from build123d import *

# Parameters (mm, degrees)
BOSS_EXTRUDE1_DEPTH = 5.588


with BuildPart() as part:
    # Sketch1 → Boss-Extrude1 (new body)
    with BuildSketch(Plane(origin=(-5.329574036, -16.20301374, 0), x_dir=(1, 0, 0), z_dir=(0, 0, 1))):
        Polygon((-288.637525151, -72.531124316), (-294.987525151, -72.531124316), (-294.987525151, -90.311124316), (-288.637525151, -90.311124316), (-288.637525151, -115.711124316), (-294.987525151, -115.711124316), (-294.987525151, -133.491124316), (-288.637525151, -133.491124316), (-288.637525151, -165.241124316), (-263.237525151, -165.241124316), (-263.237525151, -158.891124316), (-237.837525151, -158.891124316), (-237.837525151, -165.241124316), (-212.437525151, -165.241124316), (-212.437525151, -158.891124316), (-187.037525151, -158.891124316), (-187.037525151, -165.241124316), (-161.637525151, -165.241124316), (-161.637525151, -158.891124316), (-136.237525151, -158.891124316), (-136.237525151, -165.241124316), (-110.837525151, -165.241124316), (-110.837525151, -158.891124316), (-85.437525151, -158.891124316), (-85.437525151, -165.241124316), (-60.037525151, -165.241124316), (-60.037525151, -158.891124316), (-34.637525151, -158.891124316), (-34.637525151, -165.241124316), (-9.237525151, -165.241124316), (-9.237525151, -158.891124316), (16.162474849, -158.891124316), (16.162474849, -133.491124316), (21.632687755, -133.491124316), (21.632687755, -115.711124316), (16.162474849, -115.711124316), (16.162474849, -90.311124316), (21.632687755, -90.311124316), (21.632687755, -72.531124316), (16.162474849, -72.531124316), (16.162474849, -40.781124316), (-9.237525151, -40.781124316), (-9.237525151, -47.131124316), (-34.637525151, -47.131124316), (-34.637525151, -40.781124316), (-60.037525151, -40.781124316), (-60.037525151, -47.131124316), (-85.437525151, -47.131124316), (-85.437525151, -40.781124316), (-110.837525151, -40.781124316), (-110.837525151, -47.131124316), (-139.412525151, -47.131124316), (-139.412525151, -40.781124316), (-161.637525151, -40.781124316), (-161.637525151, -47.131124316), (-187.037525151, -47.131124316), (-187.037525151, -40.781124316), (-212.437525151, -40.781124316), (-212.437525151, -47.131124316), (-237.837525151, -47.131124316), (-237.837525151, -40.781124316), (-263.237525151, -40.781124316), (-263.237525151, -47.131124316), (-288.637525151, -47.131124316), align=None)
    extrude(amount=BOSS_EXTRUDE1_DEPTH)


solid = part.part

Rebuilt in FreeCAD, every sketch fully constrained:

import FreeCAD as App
import Part
import Sketcher

V = App.Vector
Q = App.Units.Quantity


def add_polygon(sketch, points):
    """Adds a closed chain of lines whose ends are joined by coincident constraints."""
    first, n = sketch.GeometryCount, len(points)
    for a, b in zip(points, points[1:] + points[:1]):
        sketch.addGeometry(Part.LineSegment(App.Vector(*a, 0), App.Vector(*b, 0)), False)
    for i in range(n):
        sketch.addConstraint(Sketcher.Constraint("Coincident", first + i, 2, first + (i + 1) % n, 1))

doc = App.newDocument("Part")
params = doc.addObject("Spreadsheet::Sheet", "Params")
for row, (alias, value) in enumerate([
    ("sketch1_width", "1 in"),
    ("sketch1_height", "0.7 in"),
    ("sketch1_width2", "0.25 in"),
    ("sketch1_width3", "1.125 in"),
    ("pad1_length", "0.22 in"),
], start=1):
    params.set(f"A{row}", alias)
    params.set(f"B{row}", "=" + value)
    params.setAlias(f"B{row}", alias)

body = doc.addObject("PartDesign::Body", "Body")

# Sketch on XY plane
sketch1 = body.newObject("Sketcher::SketchObject", "Sketch")
sketch1.AttachmentSupport = (doc.getObject("XY_Plane"), [""])
sketch1.MapMode = "FlatFace"
add_polygon(sketch1, [(-294, -89), (-300, -89), (-300, -107), (-294, -107), (-294, -132), (-300, -132), (-300, -150), (-294, -150), (-294, -181), (-269, -181), (-269, -175), (-243, -175), (-243, -181), (-218, -181), (-218, -175), (-192, -175), (-192, -181), (-167, -181), (-167, -175), (-142, -175), (-142, -181), (-116, -181), (-116, -175), (-91, -175), (-91, -181), (-65, -181), (-65, -175), (-40, -175), (-40, -181), (-15, -181), (-15, -175), (11, -175), (11, -150), (16, -150), (16, -132), (11, -132), (11, -107), (16, -107), (16, -89), (11, -89), (11, -57), (-15, -57), (-15, -63), (-40, -63), (-40, -57), (-65, -57), (-65, -63), (-91, -63), (-91, -57), (-116, -57), (-116, -63), (-145, -63), (-145, -57), (-167, -57), (-167, -63), (-192, -63), (-192, -57), (-218, -57), (-218, -63), (-243, -63), (-243, -57), (-269, -57), (-269, -63), (-294, -63)])  # lines 0-63
sketch1.addConstraint(Sketcher.Constraint("Horizontal", 0))
sketch1.addConstraint(Sketcher.Constraint("Vertical", 1))
sketch1.addConstraint(Sketcher.Constraint("Horizontal", 2))
sketch1.addConstraint(Sketcher.Constraint("Vertical", 3))
sketch1.addConstraint(Sketcher.Constraint("Horizontal", 4))
sketch1.addConstraint(Sketcher.Constraint("Vertical", 5))
sketch1.addConstraint(Sketcher.Constraint("Horizontal", 6))
sketch1.addConstraint(Sketcher.Constraint("Vertical", 7))
sketch1.addConstraint(Sketcher.Constraint("Horizontal", 8))
sketch1.addConstraint(Sketcher.Constraint("Vertical", 9))
sketch1.addConstraint(Sketcher.Constraint("Horizontal", 10))
sketch1.addConstraint(Sketcher.Constraint("Vertical", 11))
sketch1.addConstraint(Sketcher.Constraint("Horizontal", 12))
sketch1.addConstraint(Sketcher.Constraint("Vertical", 13))
sketch1.addConstraint(Sketcher.Constraint("Horizontal", 14))
sketch1.addConstraint(Sketcher.Constraint("Vertical", 15))
sketch1.addConstraint(Sketcher.Constraint("Horizontal", 16))
sketch1.addConstraint(Sketcher.Constraint("Vertical", 17))
sketch1.addConstraint(Sketcher.Constraint("Horizontal", 18))
sketch1.addConstraint(Sketcher.Constraint("Vertical", 19))
sketch1.addConstraint(Sketcher.Constraint("Horizontal", 20))
sketch1.addConstraint(Sketcher.Constraint("Vertical", 21))
sketch1.addConstraint(Sketcher.Constraint("Horizontal", 22))
sketch1.addConstraint(Sketcher.Constraint("Vertical", 23))
sketch1.addConstraint(Sketcher.Constraint("Horizontal", 24))
sketch1.addConstraint(Sketcher.Constraint("Vertical", 25))
sketch1.addConstraint(Sketcher.Constraint("Horizontal", 26))
sketch1.addConstraint(Sketcher.Constraint("Vertical", 27))
sketch1.addConstraint(Sketcher.Constraint("Horizontal", 28))
sketch1.addConstraint(Sketcher.Constraint("Vertical", 29))
sketch1.addConstraint(Sketcher.Constraint("Horizontal", 30))
sketch1.addConstraint(Sketcher.Constraint("Vertical", 31))
sketch1.addConstraint(Sketcher.Constraint("Horizontal", 32))
sketch1.addConstraint(Sketcher.Constraint("Vertical", 33))
sketch1.addConstraint(Sketcher.Constraint("Horizontal", 34))
sketch1.addConstraint(Sketcher.Constraint("Vertical", 35))
sketch1.addConstraint(Sketcher.Constraint("Horizontal", 36))
sketch1.addConstraint(Sketcher.Constraint("Vertical", 37))
sketch1.addConstraint(Sketcher.Constraint("Horizontal", 38))
sketch1.addConstraint(Sketcher.Constraint("Vertical", 39))
sketch1.addConstraint(Sketcher.Constraint("Horizontal", 40))
sketch1.addConstraint(Sketcher.Constraint("Vertical", 41))
sketch1.addConstraint(Sketcher.Constraint("Horizontal", 42))
sketch1.addConstraint(Sketcher.Constraint("Vertical", 43))
sketch1.addConstraint(Sketcher.Constraint("Horizontal", 44))
sketch1.addConstraint(Sketcher.Constraint("Vertical", 45))
sketch1.addConstraint(Sketcher.Constraint("Horizontal", 46))
sketch1.addConstraint(Sketcher.Constraint("Vertical", 47))
sketch1.addConstraint(Sketcher.Constraint("Horizontal", 48))
sketch1.addConstraint(Sketcher.Constraint("Vertical", 49))
sketch1.addConstraint(Sketcher.Constraint("Horizontal", 50))
sketch1.addConstraint(Sketcher.Constraint("Vertical", 51))
sketch1.addConstraint(Sketcher.Constraint("Horizontal", 52))
sketch1.addConstraint(Sketcher.Constraint("Vertical", 53))
sketch1.addConstraint(Sketcher.Constraint("Horizontal", 54))
sketch1.addConstraint(Sketcher.Constraint("Vertical", 55))
sketch1.addConstraint(Sketcher.Constraint("Horizontal", 56))
sketch1.addConstraint(Sketcher.Constraint("Vertical", 57))
sketch1.addConstraint(Sketcher.Constraint("Horizontal", 58))
sketch1.addConstraint(Sketcher.Constraint("Vertical", 59))
sketch1.addConstraint(Sketcher.Constraint("Horizontal", 60))
sketch1.addConstraint(Sketcher.Constraint("Vertical", 61))
sketch1.addConstraint(Sketcher.Constraint("Horizontal", 62))
sketch1.addConstraint(Sketcher.Constraint("Vertical", 63))
sketch1.addConstraint(Sketcher.Constraint("Horizontal", 8, 2, 11, 2))
sketch1.addConstraint(Sketcher.Constraint("Horizontal", 10, 2, 13, 2))
sketch1.addConstraint(Sketcher.Constraint("Horizontal", 12, 2, 15, 2))
sketch1.addConstraint(Sketcher.Constraint("Horizontal", 14, 2, 17, 2))
sketch1.addConstraint(Sketcher.Constraint("Horizontal", 16, 2, 19, 2))
sketch1.addConstraint(Sketcher.Constraint("Horizontal", 18, 2, 21, 2))
sketch1.addConstraint(Sketcher.Constraint("Horizontal", 20, 2, 23, 2))
sketch1.addConstraint(Sketcher.Constraint("Horizontal", 22, 2, 25, 2))
sketch1.addConstraint(Sketcher.Constraint("Horizontal", 24, 2, 27, 2))
sketch1.addConstraint(Sketcher.Constraint("Horizontal", 26, 2, 29, 2))
sketch1.addConstraint(Sketcher.Constraint("Horizontal", 6, 2, 31, 2))
sketch1.addConstraint(Sketcher.Constraint("Horizontal", 4, 2, 33, 2))
sketch1.addConstraint(Sketcher.Constraint("Horizontal", 2, 2, 35, 2))
sketch1.addConstraint(Sketcher.Constraint("Horizontal", 0, 2, 37, 2))
sketch1.addConstraint(Sketcher.Constraint("Horizontal", 40, 2, 43, 2))
sketch1.addConstraint(Sketcher.Constraint("Horizontal", 42, 2, 45, 2))
sketch1.addConstraint(Sketcher.Constraint("Horizontal", 44, 2, 47, 2))
sketch1.addConstraint(Sketcher.Constraint("Horizontal", 46, 2, 49, 2))
sketch1.addConstraint(Sketcher.Constraint("Horizontal", 48, 2, 51, 2))
sketch1.addConstraint(Sketcher.Constraint("Horizontal", 50, 2, 53, 2))
sketch1.addConstraint(Sketcher.Constraint("Horizontal", 52, 2, 55, 2))
sketch1.addConstraint(Sketcher.Constraint("Horizontal", 54, 2, 57, 2))
sketch1.addConstraint(Sketcher.Constraint("Horizontal", 56, 2, 59, 2))
sketch1.addConstraint(Sketcher.Constraint("Horizontal", 58, 2, 61, 2))
sketch1.addConstraint(Sketcher.Constraint("Vertical", 1, 2, 4, 2))
sketch1.addConstraint(Sketcher.Constraint("Vertical", 3, 2, 6, 2))
sketch1.addConstraint(Sketcher.Constraint("Vertical", 31, 2, 34, 2))
sketch1.addConstraint(Sketcher.Constraint("Vertical", 33, 2, 36, 2))
sketch1.addConstraint(Sketcher.Constraint("Vertical", 35, 2, 38, 2))
sketch1.addConstraint(Sketcher.Constraint("Vertical", 29, 2, 40, 2))
sketch1.addConstraint(Sketcher.Constraint("Vertical", 27, 2, 42, 2))
sketch1.addConstraint(Sketcher.Constraint("Vertical", 25, 2, 44, 2))
sketch1.addConstraint(Sketcher.Constraint("Vertical", 23, 2, 46, 2))
sketch1.addConstraint(Sketcher.Constraint("Vertical", 21, 2, 48, 2))
sketch1.addConstraint(Sketcher.Constraint("Vertical", 17, 2, 52, 2))
sketch1.addConstraint(Sketcher.Constraint("Vertical", 15, 2, 54, 2))
sketch1.addConstraint(Sketcher.Constraint("Vertical", 13, 2, 56, 2))
sketch1.addConstraint(Sketcher.Constraint("Vertical", 11, 2, 58, 2))
sketch1.addConstraint(Sketcher.Constraint("Vertical", 9, 2, 60, 2))
sketch1.addConstraint(Sketcher.Constraint("Vertical", 7, 2, 62, 2))
sketch1.addConstraint(Sketcher.Constraint("Equal", 8, 10))
sketch1.addConstraint(Sketcher.Constraint("Equal", 10, 12))
sketch1.addConstraint(Sketcher.Constraint("Equal", 12, 14))
sketch1.addConstraint(Sketcher.Constraint("Equal", 14, 16))
sketch1.addConstraint(Sketcher.Constraint("Equal", 16, 18))
sketch1.addConstraint(Sketcher.Constraint("Equal", 18, 20))
sketch1.addConstraint(Sketcher.Constraint("Equal", 20, 22))
sketch1.addConstraint(Sketcher.Constraint("Equal", 22, 24))
sketch1.addConstraint(Sketcher.Constraint("Equal", 24, 26))
sketch1.addConstraint(Sketcher.Constraint("Equal", 26, 28))
sketch1.addConstraint(Sketcher.Constraint("Equal", 28, 30))
sketch1.addConstraint(Sketcher.Constraint("Equal", 62, 3))
sketch1.addConstraint(Sketcher.Constraint("Equal", 1, 5))
sketch1.addConstraint(Sketcher.Constraint("Equal", 6, 9))
sketch1.addConstraint(Sketcher.Constraint("Equal", 3, 31))
sketch1.addConstraint(Sketcher.Constraint("Equal", 7, 39))
sketch1.addConstraint(Sketcher.Constraint("Equal", 29, 41))
sketch1.addConstraint(Sketcher.Constraint("DistanceX", 8, 1, 8, 2, Q("1 in")))
sketch1.addConstraint(Sketcher.Constraint("DistanceY", 1, 2, 1, 1, Q("0.7 in")))
sketch1.addConstraint(Sketcher.Constraint("DistanceX", 0, 2, 0, 1, Q("0.25 in")))
sketch1.addConstraint(Sketcher.Constraint("DistanceX", 50, 2, 50, 1, Q("1.125 in")))
sketch1.addConstraint(Sketcher.Constraint("DistanceX", 0, 2, -1, 1, Q("300.317099 mm")))
sketch1.addConstraint(Sketcher.Constraint("DistanceX", 32, 1, 32, 2, Q("5.470213 mm")))
sketch1.addConstraint(Sketcher.Constraint("DistanceY", 0, 2, -1, 1, Q("88.734138 mm")))
sketch1.setExpression("Constraints[185]", "Params.sketch1_width")
sketch1.setExpression("Constraints[186]", "Params.sketch1_height")
sketch1.setExpression("Constraints[187]", "Params.sketch1_width2")
sketch1.setExpression("Constraints[188]", "Params.sketch1_width3")
pad1 = body.newObject("PartDesign::Pad", "Pad")
pad1.Profile = sketch1
pad1.setExpression("Length", "Params.pad1_length")

doc.recompute()
